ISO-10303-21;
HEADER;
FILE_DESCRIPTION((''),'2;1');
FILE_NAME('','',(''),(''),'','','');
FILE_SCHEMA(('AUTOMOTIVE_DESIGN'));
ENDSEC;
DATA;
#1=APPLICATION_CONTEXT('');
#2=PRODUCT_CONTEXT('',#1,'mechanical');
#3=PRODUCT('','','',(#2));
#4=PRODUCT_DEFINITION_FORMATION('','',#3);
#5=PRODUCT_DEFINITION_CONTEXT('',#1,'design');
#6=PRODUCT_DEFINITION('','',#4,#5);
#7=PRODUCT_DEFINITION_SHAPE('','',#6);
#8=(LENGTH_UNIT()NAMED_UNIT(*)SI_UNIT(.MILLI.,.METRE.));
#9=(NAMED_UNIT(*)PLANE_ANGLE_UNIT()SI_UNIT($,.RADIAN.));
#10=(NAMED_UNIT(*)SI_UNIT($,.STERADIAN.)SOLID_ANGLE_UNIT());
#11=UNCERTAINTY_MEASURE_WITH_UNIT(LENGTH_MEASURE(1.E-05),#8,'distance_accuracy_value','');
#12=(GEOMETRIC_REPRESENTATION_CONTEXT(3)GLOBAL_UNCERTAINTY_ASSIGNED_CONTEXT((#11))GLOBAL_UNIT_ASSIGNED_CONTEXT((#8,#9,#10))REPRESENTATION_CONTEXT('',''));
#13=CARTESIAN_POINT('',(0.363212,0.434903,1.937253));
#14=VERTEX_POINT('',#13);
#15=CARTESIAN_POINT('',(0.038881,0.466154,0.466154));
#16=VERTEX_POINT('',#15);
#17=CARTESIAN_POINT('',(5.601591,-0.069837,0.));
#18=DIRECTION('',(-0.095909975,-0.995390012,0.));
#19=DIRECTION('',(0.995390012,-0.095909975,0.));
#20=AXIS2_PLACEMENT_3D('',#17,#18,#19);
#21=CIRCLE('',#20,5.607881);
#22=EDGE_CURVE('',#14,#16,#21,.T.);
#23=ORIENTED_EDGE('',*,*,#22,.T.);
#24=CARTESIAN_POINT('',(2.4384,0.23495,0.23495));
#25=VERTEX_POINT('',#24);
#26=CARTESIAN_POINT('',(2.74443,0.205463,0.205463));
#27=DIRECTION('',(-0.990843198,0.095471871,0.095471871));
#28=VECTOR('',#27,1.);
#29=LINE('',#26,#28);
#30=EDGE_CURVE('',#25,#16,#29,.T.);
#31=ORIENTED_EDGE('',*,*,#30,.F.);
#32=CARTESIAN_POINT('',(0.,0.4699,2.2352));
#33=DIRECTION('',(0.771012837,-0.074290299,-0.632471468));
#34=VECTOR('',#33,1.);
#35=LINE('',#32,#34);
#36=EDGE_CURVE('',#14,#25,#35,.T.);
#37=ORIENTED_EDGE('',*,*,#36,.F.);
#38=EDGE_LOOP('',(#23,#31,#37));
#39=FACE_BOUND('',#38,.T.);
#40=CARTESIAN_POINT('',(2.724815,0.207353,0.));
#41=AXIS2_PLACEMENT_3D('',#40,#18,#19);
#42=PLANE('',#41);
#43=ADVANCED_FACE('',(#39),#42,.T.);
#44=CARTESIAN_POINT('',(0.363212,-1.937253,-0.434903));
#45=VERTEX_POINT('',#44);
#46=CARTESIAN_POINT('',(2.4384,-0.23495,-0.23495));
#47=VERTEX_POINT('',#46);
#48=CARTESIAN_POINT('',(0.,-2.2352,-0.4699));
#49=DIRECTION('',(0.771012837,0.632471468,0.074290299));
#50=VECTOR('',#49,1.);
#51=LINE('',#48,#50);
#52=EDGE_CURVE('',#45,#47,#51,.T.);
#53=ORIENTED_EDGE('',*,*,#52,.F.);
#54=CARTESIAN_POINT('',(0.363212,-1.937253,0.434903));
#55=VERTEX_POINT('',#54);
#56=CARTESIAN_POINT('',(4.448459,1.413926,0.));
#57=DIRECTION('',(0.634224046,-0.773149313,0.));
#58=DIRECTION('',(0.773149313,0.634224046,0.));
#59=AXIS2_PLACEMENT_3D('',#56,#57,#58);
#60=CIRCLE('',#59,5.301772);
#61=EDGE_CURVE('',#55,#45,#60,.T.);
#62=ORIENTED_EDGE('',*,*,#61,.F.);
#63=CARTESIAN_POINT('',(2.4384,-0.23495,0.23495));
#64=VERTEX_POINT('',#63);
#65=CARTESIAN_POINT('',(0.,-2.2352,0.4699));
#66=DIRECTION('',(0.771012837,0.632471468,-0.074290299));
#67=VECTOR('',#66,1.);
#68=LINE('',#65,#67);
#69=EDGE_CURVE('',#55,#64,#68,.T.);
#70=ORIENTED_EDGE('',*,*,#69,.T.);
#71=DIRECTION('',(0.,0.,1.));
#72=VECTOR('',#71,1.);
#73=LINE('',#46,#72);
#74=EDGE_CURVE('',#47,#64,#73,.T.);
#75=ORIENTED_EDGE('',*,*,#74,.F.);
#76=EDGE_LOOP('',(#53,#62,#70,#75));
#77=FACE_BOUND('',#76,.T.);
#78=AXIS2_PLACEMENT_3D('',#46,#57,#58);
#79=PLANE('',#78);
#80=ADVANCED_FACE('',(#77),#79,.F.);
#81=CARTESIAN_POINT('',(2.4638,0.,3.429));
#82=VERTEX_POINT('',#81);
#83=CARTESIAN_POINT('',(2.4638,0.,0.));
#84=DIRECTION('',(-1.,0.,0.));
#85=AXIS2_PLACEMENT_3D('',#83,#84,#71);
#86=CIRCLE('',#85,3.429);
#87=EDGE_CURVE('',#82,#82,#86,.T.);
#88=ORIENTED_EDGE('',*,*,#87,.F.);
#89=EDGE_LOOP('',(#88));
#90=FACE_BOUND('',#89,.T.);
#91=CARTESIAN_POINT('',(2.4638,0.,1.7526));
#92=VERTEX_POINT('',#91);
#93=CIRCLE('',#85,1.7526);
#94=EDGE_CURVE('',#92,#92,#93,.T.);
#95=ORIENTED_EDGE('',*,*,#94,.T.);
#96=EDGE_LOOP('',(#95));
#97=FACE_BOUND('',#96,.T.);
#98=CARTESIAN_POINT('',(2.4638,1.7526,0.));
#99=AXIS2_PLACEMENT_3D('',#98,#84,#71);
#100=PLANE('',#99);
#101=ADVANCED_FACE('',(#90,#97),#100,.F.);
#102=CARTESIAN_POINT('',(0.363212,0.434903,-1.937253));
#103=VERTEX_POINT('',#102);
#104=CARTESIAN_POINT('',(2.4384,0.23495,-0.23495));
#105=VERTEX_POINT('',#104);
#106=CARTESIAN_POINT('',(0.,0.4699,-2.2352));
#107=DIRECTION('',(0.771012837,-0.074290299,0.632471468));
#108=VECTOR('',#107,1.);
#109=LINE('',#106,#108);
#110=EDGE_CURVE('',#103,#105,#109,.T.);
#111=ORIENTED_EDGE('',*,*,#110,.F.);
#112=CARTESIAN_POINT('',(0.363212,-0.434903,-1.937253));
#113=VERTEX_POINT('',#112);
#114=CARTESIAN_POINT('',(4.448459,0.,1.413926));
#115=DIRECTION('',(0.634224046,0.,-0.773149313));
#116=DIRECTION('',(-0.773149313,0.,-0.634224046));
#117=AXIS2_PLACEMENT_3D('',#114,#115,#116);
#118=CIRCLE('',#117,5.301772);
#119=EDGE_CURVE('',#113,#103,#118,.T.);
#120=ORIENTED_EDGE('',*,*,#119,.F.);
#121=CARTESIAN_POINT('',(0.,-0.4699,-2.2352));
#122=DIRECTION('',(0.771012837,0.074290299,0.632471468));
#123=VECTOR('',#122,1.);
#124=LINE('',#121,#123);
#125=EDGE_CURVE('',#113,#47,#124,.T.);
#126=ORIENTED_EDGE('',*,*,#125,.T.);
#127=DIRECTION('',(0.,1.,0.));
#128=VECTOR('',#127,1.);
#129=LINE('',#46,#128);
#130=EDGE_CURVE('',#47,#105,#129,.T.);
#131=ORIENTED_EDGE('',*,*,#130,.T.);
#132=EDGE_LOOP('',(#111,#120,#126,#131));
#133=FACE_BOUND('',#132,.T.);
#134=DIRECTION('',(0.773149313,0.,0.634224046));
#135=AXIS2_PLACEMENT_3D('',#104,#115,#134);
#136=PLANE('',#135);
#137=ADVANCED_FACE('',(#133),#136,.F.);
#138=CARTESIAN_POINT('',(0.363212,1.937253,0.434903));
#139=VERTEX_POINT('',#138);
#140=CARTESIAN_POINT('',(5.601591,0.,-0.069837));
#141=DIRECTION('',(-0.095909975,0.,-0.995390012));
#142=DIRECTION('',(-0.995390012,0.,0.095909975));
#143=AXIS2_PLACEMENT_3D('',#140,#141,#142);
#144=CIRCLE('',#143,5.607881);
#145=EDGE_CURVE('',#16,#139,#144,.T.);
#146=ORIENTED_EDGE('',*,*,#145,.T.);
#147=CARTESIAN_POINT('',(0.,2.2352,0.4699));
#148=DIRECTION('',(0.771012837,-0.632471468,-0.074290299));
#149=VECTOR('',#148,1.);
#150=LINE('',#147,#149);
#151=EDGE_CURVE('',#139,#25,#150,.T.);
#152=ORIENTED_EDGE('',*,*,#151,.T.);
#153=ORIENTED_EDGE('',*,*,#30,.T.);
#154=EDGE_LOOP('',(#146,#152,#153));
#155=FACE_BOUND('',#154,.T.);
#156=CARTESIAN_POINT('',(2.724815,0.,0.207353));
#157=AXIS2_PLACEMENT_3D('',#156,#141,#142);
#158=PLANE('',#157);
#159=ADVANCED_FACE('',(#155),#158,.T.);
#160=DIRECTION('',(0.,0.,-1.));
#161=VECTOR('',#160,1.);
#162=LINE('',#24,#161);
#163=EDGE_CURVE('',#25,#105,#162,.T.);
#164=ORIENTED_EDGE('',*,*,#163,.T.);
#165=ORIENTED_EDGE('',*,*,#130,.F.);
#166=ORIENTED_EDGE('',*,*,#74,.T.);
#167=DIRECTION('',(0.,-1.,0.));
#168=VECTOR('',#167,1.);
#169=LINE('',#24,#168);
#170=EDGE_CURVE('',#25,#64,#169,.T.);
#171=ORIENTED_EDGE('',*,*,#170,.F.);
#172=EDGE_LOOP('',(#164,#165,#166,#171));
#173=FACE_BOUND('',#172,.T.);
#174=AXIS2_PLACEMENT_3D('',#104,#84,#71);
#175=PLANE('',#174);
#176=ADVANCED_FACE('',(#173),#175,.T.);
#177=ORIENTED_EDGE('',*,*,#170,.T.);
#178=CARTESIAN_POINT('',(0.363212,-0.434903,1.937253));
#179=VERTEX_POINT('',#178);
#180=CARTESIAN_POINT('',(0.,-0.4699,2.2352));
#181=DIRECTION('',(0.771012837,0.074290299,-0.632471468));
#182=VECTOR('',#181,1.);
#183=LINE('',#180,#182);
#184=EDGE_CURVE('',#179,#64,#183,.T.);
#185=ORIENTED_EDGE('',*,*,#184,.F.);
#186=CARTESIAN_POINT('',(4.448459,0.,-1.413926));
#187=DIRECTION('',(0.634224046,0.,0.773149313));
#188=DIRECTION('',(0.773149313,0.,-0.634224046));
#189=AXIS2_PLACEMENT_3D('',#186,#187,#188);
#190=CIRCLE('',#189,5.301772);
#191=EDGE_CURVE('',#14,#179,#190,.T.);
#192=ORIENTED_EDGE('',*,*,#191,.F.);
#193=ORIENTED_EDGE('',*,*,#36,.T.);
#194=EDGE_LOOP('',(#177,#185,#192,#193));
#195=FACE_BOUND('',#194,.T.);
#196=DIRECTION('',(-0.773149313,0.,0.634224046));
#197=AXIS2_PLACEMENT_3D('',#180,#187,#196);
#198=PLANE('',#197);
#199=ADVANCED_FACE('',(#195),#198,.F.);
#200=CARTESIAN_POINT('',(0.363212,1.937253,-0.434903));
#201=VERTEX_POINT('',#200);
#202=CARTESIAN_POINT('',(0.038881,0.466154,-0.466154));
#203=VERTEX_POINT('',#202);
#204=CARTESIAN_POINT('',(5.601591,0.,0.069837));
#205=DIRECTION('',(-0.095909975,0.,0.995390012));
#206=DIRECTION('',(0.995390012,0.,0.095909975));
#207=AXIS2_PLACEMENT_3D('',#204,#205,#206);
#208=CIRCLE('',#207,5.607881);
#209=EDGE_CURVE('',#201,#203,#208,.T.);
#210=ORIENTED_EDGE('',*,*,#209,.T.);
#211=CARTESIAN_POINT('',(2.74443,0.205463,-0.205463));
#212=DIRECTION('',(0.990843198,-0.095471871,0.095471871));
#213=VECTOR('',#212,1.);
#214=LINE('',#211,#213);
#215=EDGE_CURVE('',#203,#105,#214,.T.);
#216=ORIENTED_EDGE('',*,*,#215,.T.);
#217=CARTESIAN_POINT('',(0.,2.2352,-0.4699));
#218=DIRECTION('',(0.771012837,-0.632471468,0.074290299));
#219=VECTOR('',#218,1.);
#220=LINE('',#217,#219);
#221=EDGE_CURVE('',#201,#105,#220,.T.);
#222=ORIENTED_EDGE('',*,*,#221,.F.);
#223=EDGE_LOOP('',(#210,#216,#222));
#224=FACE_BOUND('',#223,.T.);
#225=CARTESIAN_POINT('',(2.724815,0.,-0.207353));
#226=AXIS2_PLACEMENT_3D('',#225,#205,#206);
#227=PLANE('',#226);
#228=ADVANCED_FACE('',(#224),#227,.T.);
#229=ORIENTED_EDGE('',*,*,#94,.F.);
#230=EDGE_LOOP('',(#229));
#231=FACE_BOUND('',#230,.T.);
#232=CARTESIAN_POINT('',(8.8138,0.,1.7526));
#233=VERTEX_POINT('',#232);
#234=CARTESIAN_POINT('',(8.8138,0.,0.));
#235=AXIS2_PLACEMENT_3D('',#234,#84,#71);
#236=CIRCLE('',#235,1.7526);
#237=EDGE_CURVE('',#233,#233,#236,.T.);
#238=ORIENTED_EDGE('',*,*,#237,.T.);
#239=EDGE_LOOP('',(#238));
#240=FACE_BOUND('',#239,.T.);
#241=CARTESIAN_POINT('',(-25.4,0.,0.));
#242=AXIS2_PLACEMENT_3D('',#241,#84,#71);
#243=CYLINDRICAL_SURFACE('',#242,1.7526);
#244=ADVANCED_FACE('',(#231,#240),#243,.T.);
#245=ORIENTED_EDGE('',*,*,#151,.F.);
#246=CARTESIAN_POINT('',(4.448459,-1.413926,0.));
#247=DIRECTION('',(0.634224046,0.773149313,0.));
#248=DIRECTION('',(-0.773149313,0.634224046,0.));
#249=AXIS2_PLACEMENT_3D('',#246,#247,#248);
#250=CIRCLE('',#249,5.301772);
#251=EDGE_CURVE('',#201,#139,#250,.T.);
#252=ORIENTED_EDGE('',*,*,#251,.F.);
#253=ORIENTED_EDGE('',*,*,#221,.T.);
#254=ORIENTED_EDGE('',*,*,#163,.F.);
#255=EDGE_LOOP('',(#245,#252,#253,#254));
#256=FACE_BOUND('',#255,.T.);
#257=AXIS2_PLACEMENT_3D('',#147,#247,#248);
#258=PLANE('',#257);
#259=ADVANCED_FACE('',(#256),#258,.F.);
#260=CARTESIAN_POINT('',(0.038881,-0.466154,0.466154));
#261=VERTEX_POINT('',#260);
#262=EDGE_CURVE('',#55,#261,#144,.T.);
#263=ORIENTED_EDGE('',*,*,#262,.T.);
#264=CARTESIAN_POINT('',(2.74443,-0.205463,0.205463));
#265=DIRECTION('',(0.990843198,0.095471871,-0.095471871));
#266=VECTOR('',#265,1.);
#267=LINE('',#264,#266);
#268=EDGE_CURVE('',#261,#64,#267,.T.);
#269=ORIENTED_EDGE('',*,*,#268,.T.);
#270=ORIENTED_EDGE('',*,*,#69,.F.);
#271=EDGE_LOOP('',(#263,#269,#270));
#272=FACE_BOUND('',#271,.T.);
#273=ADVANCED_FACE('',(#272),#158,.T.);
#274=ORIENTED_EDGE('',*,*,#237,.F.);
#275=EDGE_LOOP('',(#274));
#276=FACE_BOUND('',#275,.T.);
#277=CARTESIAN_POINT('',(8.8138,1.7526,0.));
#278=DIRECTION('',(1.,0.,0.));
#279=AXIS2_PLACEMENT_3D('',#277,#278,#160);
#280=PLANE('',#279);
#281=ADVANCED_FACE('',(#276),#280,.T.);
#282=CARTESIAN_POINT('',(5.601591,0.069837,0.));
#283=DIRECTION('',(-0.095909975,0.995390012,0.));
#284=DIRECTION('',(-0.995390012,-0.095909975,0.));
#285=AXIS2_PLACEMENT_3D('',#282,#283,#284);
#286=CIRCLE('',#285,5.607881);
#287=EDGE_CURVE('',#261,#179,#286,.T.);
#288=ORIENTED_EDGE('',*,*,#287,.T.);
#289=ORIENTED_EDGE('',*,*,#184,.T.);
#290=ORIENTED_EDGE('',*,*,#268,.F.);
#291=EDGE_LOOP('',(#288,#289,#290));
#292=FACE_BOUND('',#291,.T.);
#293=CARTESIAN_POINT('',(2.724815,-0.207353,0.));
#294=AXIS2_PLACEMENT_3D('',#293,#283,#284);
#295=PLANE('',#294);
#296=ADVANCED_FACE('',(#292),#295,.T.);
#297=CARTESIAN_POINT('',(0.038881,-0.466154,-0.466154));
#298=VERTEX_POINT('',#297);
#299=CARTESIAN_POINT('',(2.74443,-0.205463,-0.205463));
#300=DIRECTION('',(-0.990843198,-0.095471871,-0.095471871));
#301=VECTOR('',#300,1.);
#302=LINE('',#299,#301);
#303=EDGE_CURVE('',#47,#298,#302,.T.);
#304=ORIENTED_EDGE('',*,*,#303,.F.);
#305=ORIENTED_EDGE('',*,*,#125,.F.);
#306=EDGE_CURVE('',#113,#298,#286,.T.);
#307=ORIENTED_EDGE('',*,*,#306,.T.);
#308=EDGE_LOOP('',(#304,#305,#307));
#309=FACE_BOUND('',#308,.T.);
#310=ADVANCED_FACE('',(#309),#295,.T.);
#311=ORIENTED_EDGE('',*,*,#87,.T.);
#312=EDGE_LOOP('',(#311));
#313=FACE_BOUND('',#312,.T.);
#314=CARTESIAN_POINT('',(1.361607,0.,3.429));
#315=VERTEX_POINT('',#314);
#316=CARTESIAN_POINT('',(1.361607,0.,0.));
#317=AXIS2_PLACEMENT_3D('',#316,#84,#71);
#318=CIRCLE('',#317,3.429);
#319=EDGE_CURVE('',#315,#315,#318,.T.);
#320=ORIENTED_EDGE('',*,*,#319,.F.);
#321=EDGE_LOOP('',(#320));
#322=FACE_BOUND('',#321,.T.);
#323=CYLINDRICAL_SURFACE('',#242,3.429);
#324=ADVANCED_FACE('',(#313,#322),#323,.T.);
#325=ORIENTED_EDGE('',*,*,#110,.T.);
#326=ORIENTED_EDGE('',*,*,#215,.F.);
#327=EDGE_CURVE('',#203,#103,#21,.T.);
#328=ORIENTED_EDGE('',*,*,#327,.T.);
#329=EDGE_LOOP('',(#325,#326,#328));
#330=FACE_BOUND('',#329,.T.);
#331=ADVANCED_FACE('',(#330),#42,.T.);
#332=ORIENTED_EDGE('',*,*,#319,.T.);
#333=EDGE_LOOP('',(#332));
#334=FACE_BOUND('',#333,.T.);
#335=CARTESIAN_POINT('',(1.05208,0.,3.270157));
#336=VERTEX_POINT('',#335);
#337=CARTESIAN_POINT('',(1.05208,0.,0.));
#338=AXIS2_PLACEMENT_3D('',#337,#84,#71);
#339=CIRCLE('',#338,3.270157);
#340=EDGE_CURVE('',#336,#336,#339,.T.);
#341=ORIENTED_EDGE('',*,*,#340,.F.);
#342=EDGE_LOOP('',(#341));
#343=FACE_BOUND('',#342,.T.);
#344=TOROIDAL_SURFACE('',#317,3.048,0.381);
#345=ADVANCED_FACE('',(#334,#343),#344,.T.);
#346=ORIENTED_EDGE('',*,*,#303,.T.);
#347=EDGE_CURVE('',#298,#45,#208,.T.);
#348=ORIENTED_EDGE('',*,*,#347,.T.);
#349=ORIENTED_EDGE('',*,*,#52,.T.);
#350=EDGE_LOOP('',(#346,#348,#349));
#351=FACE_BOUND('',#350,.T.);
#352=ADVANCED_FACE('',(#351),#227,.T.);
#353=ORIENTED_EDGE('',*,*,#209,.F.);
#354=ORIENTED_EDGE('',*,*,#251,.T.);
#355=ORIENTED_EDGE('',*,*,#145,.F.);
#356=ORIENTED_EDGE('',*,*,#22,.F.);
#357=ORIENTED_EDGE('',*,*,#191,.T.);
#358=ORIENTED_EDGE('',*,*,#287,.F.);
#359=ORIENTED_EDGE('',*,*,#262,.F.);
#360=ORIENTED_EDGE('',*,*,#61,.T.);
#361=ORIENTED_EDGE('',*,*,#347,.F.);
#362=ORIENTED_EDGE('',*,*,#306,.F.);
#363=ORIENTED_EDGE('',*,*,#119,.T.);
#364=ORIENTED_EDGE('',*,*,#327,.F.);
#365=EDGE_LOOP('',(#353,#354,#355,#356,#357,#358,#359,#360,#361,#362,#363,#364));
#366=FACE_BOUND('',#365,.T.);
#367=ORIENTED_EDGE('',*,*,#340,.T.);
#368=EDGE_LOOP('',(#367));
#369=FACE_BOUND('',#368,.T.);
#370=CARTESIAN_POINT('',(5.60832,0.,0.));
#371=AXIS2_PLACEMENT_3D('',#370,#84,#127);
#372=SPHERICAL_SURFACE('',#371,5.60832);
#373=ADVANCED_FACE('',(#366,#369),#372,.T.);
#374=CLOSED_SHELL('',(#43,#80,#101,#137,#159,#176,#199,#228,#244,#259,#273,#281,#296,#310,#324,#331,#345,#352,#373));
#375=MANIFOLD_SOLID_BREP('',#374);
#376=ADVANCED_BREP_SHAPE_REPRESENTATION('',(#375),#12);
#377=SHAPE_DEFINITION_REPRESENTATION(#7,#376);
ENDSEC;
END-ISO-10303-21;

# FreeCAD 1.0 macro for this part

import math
import FreeCAD as App
import Part
import Sketcher
from FreeCAD import Vector
Q = App.Units.Quantity


def add_polygon(sketch, points):
    """Adds a closed chain of lines whose ends are joined by coincident constraints."""
    first, n = sketch.GeometryCount, len(points)
    for a, b in zip(points, points[1:] + points[:1]):
        sketch.addGeometry(Part.LineSegment(App.Vector(*a, 0), App.Vector(*b, 0)), False)
    for i in range(n):
        sketch.addConstraint(Sketcher.Constraint("Coincident", first + i, 2, first + (i + 1) % n, 1))

doc = App.newDocument("Part")
body = doc.addObject("PartDesign::Body", "Body")

# Sketch on XY plane
sketch1 = doc.addObject("Sketcher::SketchObject", "Sketch")
body.addObject(sketch1)
sketch1.AttachmentSupport = (doc.XY_Plane, [""])
sketch1.MapMode = "FlatFace"
sketch1.addGeometry([
    Part.LineSegment(Vector(2.46, 1.75, 0), Vector(2.46, 3.43, 0)),  # 0
    Part.LineSegment(Vector(2.46, 3.43, 0), Vector(1.36, 3.43, 0)),  # 1
    Part.ArcOfCircle(Part.Circle(Vector(1.36, 3.05, 0), Vector(0, 0, 1), 0.38), math.radians(90), math.radians(144)),  # 2
    Part.ArcOfCircle(Part.Circle(Vector(5.61, 0, 0), Vector(0, 0, 1), 5.61), math.radians(144), math.radians(180)),  # 3
    Part.LineSegment(Vector(0, 0, 0), Vector(8.81, 0, 0)),  # 4
    Part.LineSegment(Vector(8.81, 0, 0), Vector(8.81, 1.75, 0)),  # 5
    Part.LineSegment(Vector(8.81, 1.75, 0), Vector(2.46, 1.75, 0)),  # 6
], False)
sketch1.addConstraint([
    Sketcher.Constraint("Coincident", 0, 2, 1, 1),
    Sketcher.Constraint("Tangent", 1, 2, 2, 1),
    Sketcher.Constraint("Tangent", 2, 2, 3, 1),
    Sketcher.Constraint("Coincident", 3, 2, 4, 1),
    Sketcher.Constraint("Coincident", 4, 2, 5, 1),
    Sketcher.Constraint("Coincident", 5, 2, 6, 1),
    Sketcher.Constraint("Coincident", 6, 2, 0, 1),
    Sketcher.Constraint("Vertical", 0),
    Sketcher.Constraint("Horizontal", 1),
    Sketcher.Constraint("Horizontal", 4),
    Sketcher.Constraint("Vertical", 5),
    Sketcher.Constraint("Horizontal", 6),
    Sketcher.Constraint("Coincident", 3, 2, -1, 1),
    Sketcher.Constraint("PointOnObject", 3, 3, -1),
    Sketcher.Constraint("Radius", 2, Q("0.015 in")),
    Sketcher.Constraint("DistanceX", 6, 2, 6, 1, Q("0.25 in")),
    Sketcher.Constraint("Radius", 3, Q("0.2208 in")),
    Sketcher.Constraint("DistanceX", 4, 1, 4, 2, Q("0.347 in")),
    Sketcher.Constraint("DistanceY", 0, 1, 0, 2, Q("0.066 in")),
    Sketcher.Constraint("DistanceY", 5, 1, 5, 2, Q("0.069 in")),
])
revolution = doc.addObject("PartDesign::Revolution", "Revolution")
body.addObject(revolution)
revolution.Profile = sketch1
revolution.ReferenceAxis = (sketch1, ["H_Axis"])
revolution.Angle = 360

# Sketch on YZ plane
sketch2 = doc.addObject("Sketcher::SketchObject", "Sketch001")
body.addObject(sketch2)
sketch2.AttachmentSupport = (doc.YZ_Plane, [""])
sketch2.MapMode = "FlatFace"
add_polygon(sketch2, [(2.2, 0.5), (-2.2, 0.5), (-2.2, -0.5), (2.2, -0.5)])  # lines 0-3
sketch2.addConstraint([
    Sketcher.Constraint("Horizontal", 0),
    Sketcher.Constraint("Vertical", 1),
    Sketcher.Constraint("Horizontal", 2),
    Sketcher.Constraint("Vertical", 3),
    Sketcher.Constraint("Symmetric", 0, 2, 2, 2, -1, 1),
    Sketcher.Constraint("DistanceX", 0, 2, 0, 1, Q("0.176 in")),
    Sketcher.Constraint("DistanceY", 1, 2, 1, 1, Q("0.037 in")),
])

# Sketch on YZ plane
sketch3 = doc.addObject("Sketcher::SketchObject", "Sketch002")
body.addObject(sketch3)
sketch3.AttachmentSupport = (doc.YZ_Plane, [""])
sketch3.MapMode = "FlatFace"
sketch3.AttachmentOffset = App.Placement(Vector(0, 0, 0.096 * 25.4), App.Rotation())
add_polygon(sketch3, [(0.23, 0.23), (-0.23, 0.23), (-0.23, -0.23), (0.23, -0.23)])  # lines 0-3
sketch3.addConstraint([
    Sketcher.Constraint("Horizontal", 0),
    Sketcher.Constraint("Vertical", 1),
    Sketcher.Constraint("Horizontal", 2),
    Sketcher.Constraint("Vertical", 3),
    Sketcher.Constraint("Symmetric", 0, 2, 2, 2, -1, 1),
    Sketcher.Constraint("Equal", 2, 1),
    Sketcher.Constraint("DistanceX", 0, 2, 0, 1, Q("0.0185 in")),
])

subtractiveloft = doc.addObject("PartDesign::SubtractiveLoft", "SubtractiveLoft")
body.addObject(subtractiveloft)
subtractiveloft.Profile = sketch2
subtractiveloft.Sections = [sketch3]
doc.recompute()

polarpattern = doc.addObject("PartDesign::PolarPattern", "PolarPattern")
body.addObject(polarpattern)
polarpattern.Originals = [subtractiveloft]
polarpattern.Axis = (doc.X_Axis, [""])
polarpattern.Angle = 90
polarpattern.Occurrences = 2
body.Tip = polarpattern

doc.recompute()
